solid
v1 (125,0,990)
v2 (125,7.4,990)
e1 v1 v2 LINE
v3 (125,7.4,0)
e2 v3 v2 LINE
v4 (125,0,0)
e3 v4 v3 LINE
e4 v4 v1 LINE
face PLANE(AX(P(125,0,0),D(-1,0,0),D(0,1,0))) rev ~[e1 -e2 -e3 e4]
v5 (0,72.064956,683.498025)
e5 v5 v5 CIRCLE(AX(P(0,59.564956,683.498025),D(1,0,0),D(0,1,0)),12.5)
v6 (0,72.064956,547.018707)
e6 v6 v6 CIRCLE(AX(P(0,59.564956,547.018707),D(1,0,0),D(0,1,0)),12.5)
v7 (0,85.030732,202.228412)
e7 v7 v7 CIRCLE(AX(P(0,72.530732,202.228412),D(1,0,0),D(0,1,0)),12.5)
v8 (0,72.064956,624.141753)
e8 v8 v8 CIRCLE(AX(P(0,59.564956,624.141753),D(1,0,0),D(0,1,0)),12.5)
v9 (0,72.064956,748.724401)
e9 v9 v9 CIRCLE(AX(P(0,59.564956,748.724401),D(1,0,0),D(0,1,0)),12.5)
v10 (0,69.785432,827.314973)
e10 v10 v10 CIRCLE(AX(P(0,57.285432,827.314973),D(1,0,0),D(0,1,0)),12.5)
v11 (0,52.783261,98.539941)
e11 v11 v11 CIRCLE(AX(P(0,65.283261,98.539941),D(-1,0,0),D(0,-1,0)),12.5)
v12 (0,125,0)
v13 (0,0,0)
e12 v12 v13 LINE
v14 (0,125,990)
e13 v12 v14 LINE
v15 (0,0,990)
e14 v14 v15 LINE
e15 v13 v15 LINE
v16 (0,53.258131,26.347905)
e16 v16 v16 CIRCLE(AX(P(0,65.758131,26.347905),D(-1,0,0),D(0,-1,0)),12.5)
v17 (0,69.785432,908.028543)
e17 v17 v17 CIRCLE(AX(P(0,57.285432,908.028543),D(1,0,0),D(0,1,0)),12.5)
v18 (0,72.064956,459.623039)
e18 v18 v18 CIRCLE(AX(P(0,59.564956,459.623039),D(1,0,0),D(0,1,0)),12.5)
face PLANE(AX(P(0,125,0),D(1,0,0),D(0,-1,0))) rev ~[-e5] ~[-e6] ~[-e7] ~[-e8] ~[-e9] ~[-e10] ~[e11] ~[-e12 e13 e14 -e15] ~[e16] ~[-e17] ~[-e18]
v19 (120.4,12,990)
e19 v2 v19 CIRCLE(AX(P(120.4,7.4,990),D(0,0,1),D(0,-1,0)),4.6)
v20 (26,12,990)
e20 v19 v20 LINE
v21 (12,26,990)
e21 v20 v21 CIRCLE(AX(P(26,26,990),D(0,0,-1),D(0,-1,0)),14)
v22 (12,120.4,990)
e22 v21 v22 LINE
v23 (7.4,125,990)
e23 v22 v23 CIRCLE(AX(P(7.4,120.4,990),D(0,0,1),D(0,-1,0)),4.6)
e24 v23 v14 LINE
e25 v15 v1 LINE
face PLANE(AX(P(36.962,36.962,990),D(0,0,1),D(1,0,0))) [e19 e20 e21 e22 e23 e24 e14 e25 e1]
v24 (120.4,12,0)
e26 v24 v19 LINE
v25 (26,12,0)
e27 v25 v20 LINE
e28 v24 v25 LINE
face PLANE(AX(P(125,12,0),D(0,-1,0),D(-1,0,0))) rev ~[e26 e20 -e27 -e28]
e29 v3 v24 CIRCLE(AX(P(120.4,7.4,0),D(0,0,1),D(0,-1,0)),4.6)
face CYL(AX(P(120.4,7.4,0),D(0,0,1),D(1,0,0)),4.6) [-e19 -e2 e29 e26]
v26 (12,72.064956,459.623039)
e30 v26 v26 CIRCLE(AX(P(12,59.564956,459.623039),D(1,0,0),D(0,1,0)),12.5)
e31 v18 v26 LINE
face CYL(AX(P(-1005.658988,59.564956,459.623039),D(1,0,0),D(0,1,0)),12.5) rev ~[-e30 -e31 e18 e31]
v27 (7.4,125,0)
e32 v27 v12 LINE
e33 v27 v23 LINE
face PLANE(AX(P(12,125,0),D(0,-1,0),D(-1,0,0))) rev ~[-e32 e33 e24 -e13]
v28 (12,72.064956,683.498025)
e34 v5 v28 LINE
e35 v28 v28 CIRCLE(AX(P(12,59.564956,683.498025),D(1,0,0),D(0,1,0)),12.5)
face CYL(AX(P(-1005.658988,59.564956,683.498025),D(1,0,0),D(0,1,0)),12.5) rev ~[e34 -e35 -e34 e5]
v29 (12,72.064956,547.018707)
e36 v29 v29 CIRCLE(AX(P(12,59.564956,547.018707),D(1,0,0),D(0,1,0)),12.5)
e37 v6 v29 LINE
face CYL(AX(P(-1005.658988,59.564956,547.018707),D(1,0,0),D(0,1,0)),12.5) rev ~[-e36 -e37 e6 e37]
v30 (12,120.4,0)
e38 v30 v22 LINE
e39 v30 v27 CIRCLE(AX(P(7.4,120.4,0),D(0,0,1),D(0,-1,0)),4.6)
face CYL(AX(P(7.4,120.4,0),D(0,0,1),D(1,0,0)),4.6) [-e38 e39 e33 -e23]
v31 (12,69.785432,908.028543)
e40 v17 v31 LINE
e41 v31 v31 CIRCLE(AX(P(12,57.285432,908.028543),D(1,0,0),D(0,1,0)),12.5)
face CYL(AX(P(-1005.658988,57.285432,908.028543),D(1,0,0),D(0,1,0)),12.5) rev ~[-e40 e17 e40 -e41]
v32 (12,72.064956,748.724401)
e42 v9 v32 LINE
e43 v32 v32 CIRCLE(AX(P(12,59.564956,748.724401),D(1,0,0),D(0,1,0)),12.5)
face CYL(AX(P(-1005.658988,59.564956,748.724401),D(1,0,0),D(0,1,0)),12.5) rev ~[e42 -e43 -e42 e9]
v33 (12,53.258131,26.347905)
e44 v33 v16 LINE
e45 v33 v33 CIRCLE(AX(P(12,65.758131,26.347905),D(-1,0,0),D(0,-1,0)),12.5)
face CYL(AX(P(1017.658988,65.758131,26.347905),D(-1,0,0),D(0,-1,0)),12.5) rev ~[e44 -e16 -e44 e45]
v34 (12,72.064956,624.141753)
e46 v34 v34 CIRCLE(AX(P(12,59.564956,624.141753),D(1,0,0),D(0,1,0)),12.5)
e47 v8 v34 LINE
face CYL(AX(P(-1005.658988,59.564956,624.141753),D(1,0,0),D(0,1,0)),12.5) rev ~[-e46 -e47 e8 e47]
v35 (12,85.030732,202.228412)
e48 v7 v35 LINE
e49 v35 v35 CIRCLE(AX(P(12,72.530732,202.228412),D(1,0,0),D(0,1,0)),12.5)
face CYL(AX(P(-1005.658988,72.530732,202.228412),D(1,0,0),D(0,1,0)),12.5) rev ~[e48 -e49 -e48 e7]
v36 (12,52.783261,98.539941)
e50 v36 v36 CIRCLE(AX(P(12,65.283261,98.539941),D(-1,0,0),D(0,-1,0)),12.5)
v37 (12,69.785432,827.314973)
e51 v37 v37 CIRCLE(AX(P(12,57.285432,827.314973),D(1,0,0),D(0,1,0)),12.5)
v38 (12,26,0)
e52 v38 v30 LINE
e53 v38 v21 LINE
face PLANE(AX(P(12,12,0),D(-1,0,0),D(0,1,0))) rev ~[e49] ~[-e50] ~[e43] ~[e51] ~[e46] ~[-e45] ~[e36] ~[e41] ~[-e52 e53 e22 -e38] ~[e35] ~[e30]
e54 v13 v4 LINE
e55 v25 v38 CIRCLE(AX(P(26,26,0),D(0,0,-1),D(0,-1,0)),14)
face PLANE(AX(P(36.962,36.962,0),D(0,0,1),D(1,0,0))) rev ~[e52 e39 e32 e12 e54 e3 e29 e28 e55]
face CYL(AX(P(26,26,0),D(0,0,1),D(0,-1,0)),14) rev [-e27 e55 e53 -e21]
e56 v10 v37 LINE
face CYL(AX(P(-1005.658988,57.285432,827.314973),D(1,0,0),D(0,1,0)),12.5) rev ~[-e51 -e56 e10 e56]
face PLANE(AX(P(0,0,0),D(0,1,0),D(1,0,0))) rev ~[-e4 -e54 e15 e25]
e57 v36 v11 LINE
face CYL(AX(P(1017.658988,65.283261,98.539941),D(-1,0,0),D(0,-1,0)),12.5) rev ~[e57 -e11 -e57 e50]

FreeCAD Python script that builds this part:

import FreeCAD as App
import Part
import Sketcher
Q = App.Units.Quantity


def edges_at(feature, points):
    """Names of the edges that pass closest to the given points."""
    edges = feature.Shape.Edges
    near = lambda p: min(range(len(edges)), key=lambda i: edges[i].distToShape(Part.Vertex(*p))[0])
    return sorted({f"Edge{near(p) + 1}" for p in points})

doc = App.newDocument("Part")
body = doc.addObject("PartDesign::Body", "Body")

sketch1 = body.newObject("Sketcher::SketchObject", "Sketch")
sketch1.AttachmentSupport = (doc.getObject("XY_Plane"), [""])
sketch1.MapMode = "FlatFace"
sketch1.addGeometry([
    Part.LineSegment(App.Vector(0, 125, 0), App.Vector(0, 0, 0)),
    Part.LineSegment(App.Vector(0, 0, 0), App.Vector(125, 0, 0)),
    Part.LineSegment(App.Vector(125, 0, 0), App.Vector(125, 12, 0)),
    Part.LineSegment(App.Vector(125, 12, 0), App.Vector(12, 12, 0)),
    Part.LineSegment(App.Vector(12, 12, 0), App.Vector(12, 125, 0)),
    Part.LineSegment(App.Vector(12, 125, 0), App.Vector(0, 125, 0)),
], False)
sketch1.addConstraint([
    Sketcher.Constraint("Coincident", 0, 2, 1, 1),
    Sketcher.Constraint("Coincident", 1, 2, 2, 1),
    Sketcher.Constraint("Coincident", 2, 2, 3, 1),
    Sketcher.Constraint("Coincident", 3, 2, 4, 1),
    Sketcher.Constraint("Coincident", 4, 2, 5, 1),
    Sketcher.Constraint("Coincident", 5, 2, 0, 1),
    Sketcher.Constraint("Vertical", 0),
    Sketcher.Constraint("Horizontal", 1),
    Sketcher.Constraint("Vertical", 2),
    Sketcher.Constraint("Horizontal", 3),
    Sketcher.Constraint("Vertical", 4),
    Sketcher.Constraint("Horizontal", 5),
    Sketcher.Constraint("Coincident", 0, 2, -1, 1),
    Sketcher.Constraint("Equal", 1, 0),
    Sketcher.Constraint("Equal", 5, 2),
    Sketcher.Constraint("DistanceX", 1, 1, 1, 2, Q("125 mm")),
    Sketcher.Constraint("DistanceX", 3, 2, 3, 1, Q("113 mm")),
])
pad1 = body.newObject("PartDesign::Pad", "Pad")
pad1.Profile = sketch1
pad1.Length = 990
doc.recompute()

fillet = body.newObject("PartDesign::Fillet", "Fillet")
fillet.Base = (pad1, edges_at(pad1, [(12, 125, 495), (125, 12, 495)]))
fillet.Radius = 4.6
doc.recompute()

fillet2 = body.newObject("PartDesign::Fillet", "Fillet001")
fillet2.Base = (fillet, edges_at(fillet, [(12, 12, 495)]))
fillet2.Radius = 14

sketch2 = body.newObject("Sketcher::SketchObject", "Sketch001")
sketch2.AttachmentSupport = (doc.getObject("YZ_Plane"), [""])
sketch2.MapMode = "FlatFace"
sketch2.addGeometry([
    Part.Circle(App.Vector(57, 908, 0), App.Vector(0, 0, 1), 12),
    Part.Circle(App.Vector(60, 460, 0), App.Vector(0, 0, 1), 12),
    Part.Circle(App.Vector(60, 547, 0), App.Vector(0, 0, 1), 12),
    Part.Circle(App.Vector(60, 624, 0), App.Vector(0, 0, 1), 12),
    Part.Circle(App.Vector(60, 683, 0), App.Vector(0, 0, 1), 12),
    Part.Circle(App.Vector(60, 749, 0), App.Vector(0, 0, 1), 12),
    Part.Circle(App.Vector(57, 827, 0), App.Vector(0, 0, 1), 12),
], False)
sketch2.addConstraint([
    Sketcher.Constraint("Equal", 0, 1),
    Sketcher.Constraint("Equal", 1, 2),
    Sketcher.Constraint("Equal", 2, 3),
    Sketcher.Constraint("Equal", 3, 4),
    Sketcher.Constraint("Equal", 4, 5),
    Sketcher.Constraint("Equal", 5, 6),
    Sketcher.Constraint("Vertical", 1, 3, 2, 3),
    Sketcher.Constraint("Vertical", 2, 3, 3, 3),
    Sketcher.Constraint("Vertical", 3, 3, 4, 3),
    Sketcher.Constraint("Vertical", 4, 3, 5, 3),
    Sketcher.Constraint("Vertical", 0, 3, 6, 3),
    Sketcher.Constraint("Diameter", 0, Q("25 mm")),
    Sketcher.Constraint("DistanceY", -1, 1, 5, 3, Q("748.724401 mm")),
    Sketcher.Constraint("DistanceY", -1, 1, 1, 3, Q("459.623039 mm")),
    Sketcher.Constraint("DistanceY", 3, 3, 0, 3, Q("283.88679 mm")),
    Sketcher.Constraint("DistanceY", 3, 3, 4, 3, Q("59.356272 mm")),
    Sketcher.Constraint("DistanceY", 2, 3, 4, 3, Q("136.479318 mm")),
    Sketcher.Constraint("DistanceY", 6, 3, 0, 3, Q("80.71357 mm")),
    Sketcher.Constraint("DistanceX", -1, 1, 0, 3, Q("57.285432 mm")),
    Sketcher.Constraint("DistanceY", -1, 1, 0, 3, Q("908.028543 mm")),
    Sketcher.Constraint("DistanceX", -1, 1, 1, 3, Q("59.564956 mm")),
])
doc.recompute()
hole = body.newObject("PartDesign::Hole", "Hole")
hole.Profile = sketch2
hole.ThreadType = "None"
hole.Diameter = 25
hole.DepthType = "ThroughAll"
hole.Reversed = True

sketch3 = body.newObject("Sketcher::SketchObject", "Sketch002")
sketch3.AttachmentSupport = (doc.getObject("YZ_Plane"), [""])
sketch3.MapMode = "FlatFace"
sketch3.addGeometry(Part.Circle(App.Vector(73, 202, 0), App.Vector(0, 0, 1), 12), False)
sketch3.addConstraint([
    Sketcher.Constraint("Diameter", 0, Q("25 mm")),
    Sketcher.Constraint("DistanceX", -1, 1, 0, 3, Q("72.530732 mm")),
    Sketcher.Constraint("DistanceY", -1, 1, 0, 3, Q("202.228412 mm")),
])
doc.recompute()
hole2 = body.newObject("PartDesign::Hole", "Hole001")
hole2.Profile = sketch3
hole2.ThreadType = "None"
hole2.Diameter = 25
hole2.DepthType = "ThroughAll"
hole2.Reversed = True

sketch4 = body.newObject("Sketcher::SketchObject", "Sketch003")
sketch4.AttachmentSupport = (doc.getObject("YZ_Plane"), [""])
sketch4.MapMode = "FlatFace"
sketch4.AttachmentOffset = App.Placement(App.Vector(0, 0, 12), App.Rotation())
sketch4.addGeometry(Part.Circle(App.Vector(66, 26, 0), App.Vector(0, 0, 1), 12), False)
sketch4.addConstraint([
    Sketcher.Constraint("Diameter", 0, Q("25 mm")),
    Sketcher.Constraint("DistanceX", -1, 1, 0, 3, Q("65.758131 mm")),
    Sketcher.Constraint("DistanceY", -1, 1, 0, 3, Q("26.347905 mm")),
])
doc.recompute()
hole3 = body.newObject("PartDesign::Hole", "Hole002")
hole3.Profile = sketch4
hole3.ThreadType = "None"
hole3.Diameter = 25
hole3.DepthType = "ThroughAll"

sketch5 = body.newObject("Sketcher::SketchObject", "Sketch004")
sketch5.AttachmentSupport = (doc.getObject("YZ_Plane"), [""])
sketch5.MapMode = "FlatFace"
sketch5.AttachmentOffset = App.Placement(App.Vector(0, 0, 12), App.Rotation())
sketch5.addGeometry(Part.Circle(App.Vector(65, 99, 0), App.Vector(0, 0, 1), 12), False)
sketch5.addConstraint([
    Sketcher.Constraint("Diameter", 0, Q("25 mm")),
    Sketcher.Constraint("DistanceX", -1, 1, 0, 3, Q("65.283261 mm")),
    Sketcher.Constraint("DistanceY", -1, 1, 0, 3, Q("98.539941 mm")),
])
doc.recompute()
hole4 = body.newObject("PartDesign::Hole", "Hole003")
hole4.Profile = sketch5
hole4.ThreadType = "None"
hole4.Diameter = 25
hole4.DepthType = "ThroughAll"

doc.recompute()
